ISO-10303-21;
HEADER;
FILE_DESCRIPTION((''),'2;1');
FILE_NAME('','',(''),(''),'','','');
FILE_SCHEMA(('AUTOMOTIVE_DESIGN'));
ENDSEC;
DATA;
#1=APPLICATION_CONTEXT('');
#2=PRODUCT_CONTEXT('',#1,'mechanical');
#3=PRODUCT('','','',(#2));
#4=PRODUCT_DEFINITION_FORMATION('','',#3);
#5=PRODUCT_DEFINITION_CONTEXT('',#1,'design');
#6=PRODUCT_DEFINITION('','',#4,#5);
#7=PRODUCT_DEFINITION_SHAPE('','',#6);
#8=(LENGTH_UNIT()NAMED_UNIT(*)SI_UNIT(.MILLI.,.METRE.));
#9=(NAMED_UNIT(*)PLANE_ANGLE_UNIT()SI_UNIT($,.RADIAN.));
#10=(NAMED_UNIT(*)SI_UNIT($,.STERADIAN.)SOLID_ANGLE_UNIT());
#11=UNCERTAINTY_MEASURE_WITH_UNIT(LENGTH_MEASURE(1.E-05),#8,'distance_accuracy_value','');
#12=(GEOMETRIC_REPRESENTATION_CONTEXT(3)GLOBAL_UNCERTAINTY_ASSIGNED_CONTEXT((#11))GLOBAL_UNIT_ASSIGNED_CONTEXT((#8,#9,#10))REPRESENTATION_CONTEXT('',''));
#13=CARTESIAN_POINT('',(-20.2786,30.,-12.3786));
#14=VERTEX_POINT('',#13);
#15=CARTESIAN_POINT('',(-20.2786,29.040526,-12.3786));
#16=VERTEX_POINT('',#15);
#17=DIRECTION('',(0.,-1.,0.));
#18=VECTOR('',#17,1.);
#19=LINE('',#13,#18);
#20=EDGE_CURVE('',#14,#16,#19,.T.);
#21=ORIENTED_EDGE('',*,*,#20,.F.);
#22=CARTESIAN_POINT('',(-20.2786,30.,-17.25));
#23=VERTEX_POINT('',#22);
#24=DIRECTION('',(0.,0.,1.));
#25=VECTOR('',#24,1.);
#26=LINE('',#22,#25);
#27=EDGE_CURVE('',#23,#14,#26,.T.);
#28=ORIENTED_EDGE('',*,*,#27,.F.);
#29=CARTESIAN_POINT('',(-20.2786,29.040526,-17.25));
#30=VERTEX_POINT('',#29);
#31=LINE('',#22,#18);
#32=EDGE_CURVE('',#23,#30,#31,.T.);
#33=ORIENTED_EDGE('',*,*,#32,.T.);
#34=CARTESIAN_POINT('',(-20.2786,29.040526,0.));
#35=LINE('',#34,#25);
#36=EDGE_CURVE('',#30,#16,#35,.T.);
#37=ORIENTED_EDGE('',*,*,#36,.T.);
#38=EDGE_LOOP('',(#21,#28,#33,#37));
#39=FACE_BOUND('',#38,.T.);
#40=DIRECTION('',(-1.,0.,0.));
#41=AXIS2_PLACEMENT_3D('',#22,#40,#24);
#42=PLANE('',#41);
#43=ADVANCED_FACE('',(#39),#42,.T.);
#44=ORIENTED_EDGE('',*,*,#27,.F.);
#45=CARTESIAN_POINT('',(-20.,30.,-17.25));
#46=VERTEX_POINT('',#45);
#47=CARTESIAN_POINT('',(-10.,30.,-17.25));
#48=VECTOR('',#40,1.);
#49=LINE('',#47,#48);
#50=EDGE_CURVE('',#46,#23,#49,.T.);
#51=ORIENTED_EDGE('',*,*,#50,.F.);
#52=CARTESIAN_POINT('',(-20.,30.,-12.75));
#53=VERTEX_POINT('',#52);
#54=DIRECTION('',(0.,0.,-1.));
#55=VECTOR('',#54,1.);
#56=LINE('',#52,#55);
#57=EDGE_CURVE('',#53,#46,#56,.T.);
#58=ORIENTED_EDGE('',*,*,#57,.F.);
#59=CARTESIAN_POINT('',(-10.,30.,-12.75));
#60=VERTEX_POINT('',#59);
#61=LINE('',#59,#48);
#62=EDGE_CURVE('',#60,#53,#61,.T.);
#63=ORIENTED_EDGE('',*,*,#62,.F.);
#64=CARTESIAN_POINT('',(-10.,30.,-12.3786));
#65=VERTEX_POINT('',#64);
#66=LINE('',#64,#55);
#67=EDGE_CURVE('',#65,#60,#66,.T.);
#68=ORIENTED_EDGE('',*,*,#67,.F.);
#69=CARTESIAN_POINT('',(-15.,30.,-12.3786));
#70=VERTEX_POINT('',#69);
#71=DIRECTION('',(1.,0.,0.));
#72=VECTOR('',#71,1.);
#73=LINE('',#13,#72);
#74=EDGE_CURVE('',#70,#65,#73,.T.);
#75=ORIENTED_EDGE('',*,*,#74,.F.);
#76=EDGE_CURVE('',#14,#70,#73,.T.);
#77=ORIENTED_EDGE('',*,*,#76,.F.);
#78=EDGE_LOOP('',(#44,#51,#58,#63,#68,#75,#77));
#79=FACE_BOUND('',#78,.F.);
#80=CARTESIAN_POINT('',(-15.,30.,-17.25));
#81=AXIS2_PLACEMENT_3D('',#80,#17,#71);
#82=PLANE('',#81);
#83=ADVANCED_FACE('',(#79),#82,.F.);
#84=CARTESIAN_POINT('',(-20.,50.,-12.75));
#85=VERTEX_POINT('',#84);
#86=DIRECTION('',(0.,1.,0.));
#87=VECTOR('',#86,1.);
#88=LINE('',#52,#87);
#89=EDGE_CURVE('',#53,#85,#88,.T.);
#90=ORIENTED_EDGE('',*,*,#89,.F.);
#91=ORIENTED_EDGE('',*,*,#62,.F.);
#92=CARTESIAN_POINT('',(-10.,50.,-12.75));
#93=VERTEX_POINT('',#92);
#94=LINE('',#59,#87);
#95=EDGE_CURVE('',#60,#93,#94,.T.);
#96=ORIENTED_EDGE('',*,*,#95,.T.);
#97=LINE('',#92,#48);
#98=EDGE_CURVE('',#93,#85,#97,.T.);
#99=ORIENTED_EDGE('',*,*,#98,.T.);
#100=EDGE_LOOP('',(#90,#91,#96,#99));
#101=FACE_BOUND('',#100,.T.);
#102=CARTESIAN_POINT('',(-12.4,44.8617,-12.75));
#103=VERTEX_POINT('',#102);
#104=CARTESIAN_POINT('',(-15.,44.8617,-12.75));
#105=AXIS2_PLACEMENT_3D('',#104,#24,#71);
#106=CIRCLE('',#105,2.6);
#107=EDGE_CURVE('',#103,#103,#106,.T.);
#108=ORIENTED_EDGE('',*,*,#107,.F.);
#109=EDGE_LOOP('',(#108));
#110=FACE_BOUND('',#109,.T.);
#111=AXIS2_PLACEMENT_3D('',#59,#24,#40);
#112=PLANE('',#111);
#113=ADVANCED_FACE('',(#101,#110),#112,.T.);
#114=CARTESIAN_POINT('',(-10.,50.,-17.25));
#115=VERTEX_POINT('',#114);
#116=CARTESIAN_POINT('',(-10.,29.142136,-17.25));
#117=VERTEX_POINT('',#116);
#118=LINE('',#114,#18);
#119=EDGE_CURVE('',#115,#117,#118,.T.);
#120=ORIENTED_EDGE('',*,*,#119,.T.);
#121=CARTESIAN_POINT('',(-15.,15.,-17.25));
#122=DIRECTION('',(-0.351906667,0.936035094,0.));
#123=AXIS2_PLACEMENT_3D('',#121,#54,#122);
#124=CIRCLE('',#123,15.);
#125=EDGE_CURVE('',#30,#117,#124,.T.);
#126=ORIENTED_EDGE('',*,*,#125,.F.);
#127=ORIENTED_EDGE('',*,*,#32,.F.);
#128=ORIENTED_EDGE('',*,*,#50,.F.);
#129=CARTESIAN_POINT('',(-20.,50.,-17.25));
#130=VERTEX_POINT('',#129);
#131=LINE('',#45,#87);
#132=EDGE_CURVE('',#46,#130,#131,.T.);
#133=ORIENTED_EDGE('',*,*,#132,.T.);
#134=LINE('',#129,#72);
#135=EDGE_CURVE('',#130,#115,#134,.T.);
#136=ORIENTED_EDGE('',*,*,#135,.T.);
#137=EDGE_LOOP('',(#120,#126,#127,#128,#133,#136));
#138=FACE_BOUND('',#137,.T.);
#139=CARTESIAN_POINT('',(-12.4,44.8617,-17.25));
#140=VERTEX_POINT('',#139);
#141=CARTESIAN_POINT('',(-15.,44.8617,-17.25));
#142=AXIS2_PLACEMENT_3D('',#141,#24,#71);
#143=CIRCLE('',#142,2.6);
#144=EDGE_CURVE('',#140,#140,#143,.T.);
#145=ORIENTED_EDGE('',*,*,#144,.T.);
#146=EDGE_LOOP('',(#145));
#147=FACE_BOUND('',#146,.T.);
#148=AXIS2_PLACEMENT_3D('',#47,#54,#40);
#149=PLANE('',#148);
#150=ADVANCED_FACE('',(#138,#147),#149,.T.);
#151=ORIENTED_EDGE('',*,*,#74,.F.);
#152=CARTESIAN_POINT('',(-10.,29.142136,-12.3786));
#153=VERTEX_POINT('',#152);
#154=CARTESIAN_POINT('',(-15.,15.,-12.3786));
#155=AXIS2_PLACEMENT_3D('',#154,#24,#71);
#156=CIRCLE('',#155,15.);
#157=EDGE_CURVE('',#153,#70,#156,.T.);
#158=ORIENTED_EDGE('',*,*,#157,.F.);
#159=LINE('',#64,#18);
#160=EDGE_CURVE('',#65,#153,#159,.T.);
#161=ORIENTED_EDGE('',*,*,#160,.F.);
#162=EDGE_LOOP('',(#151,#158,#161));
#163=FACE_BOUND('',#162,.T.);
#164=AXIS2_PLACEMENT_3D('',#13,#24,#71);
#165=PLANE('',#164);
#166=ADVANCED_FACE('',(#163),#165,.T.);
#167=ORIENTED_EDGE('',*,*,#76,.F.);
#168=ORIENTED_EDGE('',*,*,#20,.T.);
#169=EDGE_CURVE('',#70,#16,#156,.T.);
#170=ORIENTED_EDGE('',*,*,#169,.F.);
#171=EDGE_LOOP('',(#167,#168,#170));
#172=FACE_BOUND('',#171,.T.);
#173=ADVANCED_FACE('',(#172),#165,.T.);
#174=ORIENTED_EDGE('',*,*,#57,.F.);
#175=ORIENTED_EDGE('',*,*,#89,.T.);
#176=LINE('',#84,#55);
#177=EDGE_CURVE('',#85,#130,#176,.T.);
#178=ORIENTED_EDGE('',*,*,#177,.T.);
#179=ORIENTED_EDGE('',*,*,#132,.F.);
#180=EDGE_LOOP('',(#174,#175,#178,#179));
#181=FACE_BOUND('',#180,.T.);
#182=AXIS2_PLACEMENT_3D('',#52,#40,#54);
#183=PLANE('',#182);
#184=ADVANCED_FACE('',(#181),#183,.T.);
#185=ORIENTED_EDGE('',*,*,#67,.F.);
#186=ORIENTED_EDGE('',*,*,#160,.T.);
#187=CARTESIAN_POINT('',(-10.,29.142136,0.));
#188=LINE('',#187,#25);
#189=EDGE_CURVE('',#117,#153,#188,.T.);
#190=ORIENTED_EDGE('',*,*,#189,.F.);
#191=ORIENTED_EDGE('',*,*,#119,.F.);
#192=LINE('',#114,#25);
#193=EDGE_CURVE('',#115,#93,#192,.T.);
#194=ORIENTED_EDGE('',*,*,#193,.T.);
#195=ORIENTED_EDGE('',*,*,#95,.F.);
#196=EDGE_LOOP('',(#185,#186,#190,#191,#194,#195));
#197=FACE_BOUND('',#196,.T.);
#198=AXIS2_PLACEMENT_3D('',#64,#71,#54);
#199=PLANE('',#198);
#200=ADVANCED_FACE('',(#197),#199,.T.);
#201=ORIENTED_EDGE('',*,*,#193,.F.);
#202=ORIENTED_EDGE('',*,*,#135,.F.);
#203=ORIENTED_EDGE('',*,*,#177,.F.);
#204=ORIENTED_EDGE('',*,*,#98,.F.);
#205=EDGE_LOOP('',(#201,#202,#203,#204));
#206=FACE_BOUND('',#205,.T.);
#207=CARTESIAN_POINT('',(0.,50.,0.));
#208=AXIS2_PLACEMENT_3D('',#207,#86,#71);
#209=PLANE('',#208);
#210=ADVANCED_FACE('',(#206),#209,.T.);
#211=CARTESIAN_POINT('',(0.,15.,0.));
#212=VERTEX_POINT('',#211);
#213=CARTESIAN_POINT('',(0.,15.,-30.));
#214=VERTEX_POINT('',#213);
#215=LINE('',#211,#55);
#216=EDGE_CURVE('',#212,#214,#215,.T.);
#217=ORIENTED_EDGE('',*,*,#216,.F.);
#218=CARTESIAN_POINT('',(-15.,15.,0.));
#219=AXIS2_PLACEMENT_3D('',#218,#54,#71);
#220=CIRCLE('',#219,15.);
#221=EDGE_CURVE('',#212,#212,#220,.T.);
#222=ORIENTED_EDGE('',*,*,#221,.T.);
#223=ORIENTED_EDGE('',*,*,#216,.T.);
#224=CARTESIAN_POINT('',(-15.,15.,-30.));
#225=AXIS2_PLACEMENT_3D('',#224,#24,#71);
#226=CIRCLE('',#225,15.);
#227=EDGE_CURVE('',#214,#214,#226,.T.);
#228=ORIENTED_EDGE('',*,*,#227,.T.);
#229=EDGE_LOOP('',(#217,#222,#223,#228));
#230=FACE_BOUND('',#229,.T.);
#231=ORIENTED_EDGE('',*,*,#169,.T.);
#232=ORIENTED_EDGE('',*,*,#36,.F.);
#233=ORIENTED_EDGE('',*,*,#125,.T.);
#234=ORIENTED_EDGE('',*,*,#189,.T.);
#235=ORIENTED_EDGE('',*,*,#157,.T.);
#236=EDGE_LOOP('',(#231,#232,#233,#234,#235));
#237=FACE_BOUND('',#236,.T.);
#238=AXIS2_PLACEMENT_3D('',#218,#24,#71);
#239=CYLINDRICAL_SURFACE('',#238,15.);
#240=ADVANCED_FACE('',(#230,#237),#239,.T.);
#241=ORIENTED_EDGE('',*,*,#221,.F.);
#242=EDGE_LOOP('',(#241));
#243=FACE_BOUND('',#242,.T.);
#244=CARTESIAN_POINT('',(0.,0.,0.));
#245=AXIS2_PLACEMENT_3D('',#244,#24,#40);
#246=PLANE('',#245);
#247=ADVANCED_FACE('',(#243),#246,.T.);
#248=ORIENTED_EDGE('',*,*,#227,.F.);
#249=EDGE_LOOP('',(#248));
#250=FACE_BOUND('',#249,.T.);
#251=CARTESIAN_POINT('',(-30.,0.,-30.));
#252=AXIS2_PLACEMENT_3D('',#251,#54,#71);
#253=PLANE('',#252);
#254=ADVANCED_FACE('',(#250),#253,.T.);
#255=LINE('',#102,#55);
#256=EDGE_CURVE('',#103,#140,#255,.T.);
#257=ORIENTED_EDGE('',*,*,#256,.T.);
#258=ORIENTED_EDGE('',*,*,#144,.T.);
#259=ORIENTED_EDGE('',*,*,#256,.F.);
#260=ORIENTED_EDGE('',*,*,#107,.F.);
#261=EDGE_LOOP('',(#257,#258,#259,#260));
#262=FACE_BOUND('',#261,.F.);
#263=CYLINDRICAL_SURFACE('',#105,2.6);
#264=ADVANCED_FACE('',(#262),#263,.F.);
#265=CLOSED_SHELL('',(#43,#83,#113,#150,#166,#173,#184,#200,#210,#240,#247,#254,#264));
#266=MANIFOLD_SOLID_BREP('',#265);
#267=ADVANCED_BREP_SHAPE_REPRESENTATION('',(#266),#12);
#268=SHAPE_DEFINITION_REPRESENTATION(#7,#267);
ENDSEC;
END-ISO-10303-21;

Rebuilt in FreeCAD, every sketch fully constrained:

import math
import FreeCAD as App
import Part
import Sketcher
from FreeCAD import Vector
Q = App.Units.Quantity

doc = App.newDocument("Part")
body = doc.addObject("PartDesign::Body", "Body")
body.AllowCompound = True

# Sketch on XZ plane
sketch1 = doc.addObject("Sketcher::SketchObject", "Sketch")
body.addObject(sketch1)
sketch1.AttachmentSupport = (doc.XZ_Plane, [""])
sketch1.MapMode = "FlatFace"
sketch1.addGeometry([
    Part.LineSegment(Vector(-30, 0, 0), Vector(0, 0, 0)),
    Part.LineSegment(Vector(0, 0, 0), Vector(0, -30, 0)),
    Part.LineSegment(Vector(0, -30, 0), Vector(-30, -30, 0)),
    Part.LineSegment(Vector(-30, -30, 0), Vector(-30, 0, 0)),
], False)
sketch1.addConstraint([
    Sketcher.Constraint("Coincident", 0, 2, 1, 1),
    Sketcher.Constraint("Coincident", 1, 2, 2, 1),
    Sketcher.Constraint("Coincident", 2, 2, 3, 1),
    Sketcher.Constraint("Coincident", 3, 2, 0, 1),
    Sketcher.Constraint("Horizontal", 0),
    Sketcher.Constraint("Vertical", 1),
    Sketcher.Constraint("Horizontal", 2),
    Sketcher.Constraint("Vertical", 3),
    Sketcher.Constraint("Coincident", 0, 2, -1, 1),
    Sketcher.Constraint("Equal", 2, 1),
    Sketcher.Constraint("DistanceX", 0, 1, 0, 2, Q("30 mm")),
])
pad1 = doc.addObject("PartDesign::Pad", "Pad")
body.addObject(pad1)
pad1.Profile = sketch1
pad1.Length = 30
pad1.Reversed = True

# Sketch on XZ plane
sketch2 = doc.addObject("Sketcher::SketchObject", "Sketch001")
body.addObject(sketch2)
sketch2.AttachmentSupport = (doc.XZ_Plane, [""])
sketch2.MapMode = "FlatFace"
sketch2.AttachmentOffset = App.Placement(Vector(0, 0, -30), App.Rotation())
sketch2.addGeometry([
    Part.LineSegment(Vector(-10, -17.2, 0), Vector(-20, -17.2, 0)),
    Part.LineSegment(Vector(-20, -17.2, 0), Vector(-20, -12.8, 0)),
    Part.LineSegment(Vector(-20, -12.8, 0), Vector(-10, -12.8, 0)),
    Part.LineSegment(Vector(-10, -12.8, 0), Vector(-10, -17.2, 0)),
], False)
sketch2.addConstraint([
    Sketcher.Constraint("Coincident", 0, 2, 1, 1),
    Sketcher.Constraint("Coincident", 1, 2, 2, 1),
    Sketcher.Constraint("Coincident", 2, 2, 3, 1),
    Sketcher.Constraint("Coincident", 3, 2, 0, 1),
    Sketcher.Constraint("Horizontal", 0),
    Sketcher.Constraint("Vertical", 1),
    Sketcher.Constraint("Horizontal", 2),
    Sketcher.Constraint("Vertical", 3),
    Sketcher.Constraint("DistanceX", 0, 2, 0, 1, Q("10 mm")),
    Sketcher.Constraint("DistanceY", 1, 1, 1, 2, Q("4.5 mm")),
    Sketcher.Constraint("DistanceX", 2, 2, -1, 1, Q("10 mm")),
    Sketcher.Constraint("DistanceY", 0, 2, -1, 1, Q("17.25 mm")),
])
pad2 = doc.addObject("PartDesign::Pad", "Pad001")
body.addObject(pad2)
pad2.Profile = sketch2
pad2.Length = 20
pad2.Reversed = True

# Sketch on XY plane
sketch3 = doc.addObject("Sketcher::SketchObject", "Sketch002")
body.addObject(sketch3)
sketch3.AttachmentSupport = (doc.XY_Plane, [""])
sketch3.MapMode = "FlatFace"
sketch3.AttachmentOffset = App.Placement(Vector(0, 0, -12.75), App.Rotation())
sketch3.addGeometry(Part.Circle(Vector(-15, 44.9, 0), Vector(0, 0, 1), 2.6), False)
sketch3.addConstraint([
    Sketcher.Constraint("Diameter", 0, Q("5.2 mm")),
    Sketcher.Constraint("DistanceX", 0, 3, -1, 1, Q("15 mm")),
    Sketcher.Constraint("DistanceY", -1, 1, 0, 3, Q("44.8617 mm")),
])
pocket1 = doc.addObject("PartDesign::Pocket", "Pocket")
body.addObject(pocket1)
pocket1.Profile = sketch3
pocket1.Length = 20

# Sketch on XY plane
sketch4 = doc.addObject("Sketcher::SketchObject", "Sketch003")
body.addObject(sketch4)
sketch4.AttachmentSupport = (doc.XY_Plane, [""])
sketch4.MapMode = "FlatFace"
sketch4.addGeometry([
    Part.LineSegment(Vector(0, 0, 0), Vector(0, 15, 0)),  # 0
    Part.ArcOfCircle(Part.Circle(Vector(-15, 15, 0), Vector(0, 0, 1), 15), math.radians(-90), math.radians(0)),  # 1
    Part.LineSegment(Vector(-15, 0, 0), Vector(0, 0, 0)),  # 2
    Part.ArcOfCircle(Part.Circle(Vector(-15, 15, 0), Vector(0, 0, 1), 15), math.radians(0), math.radians(90)),  # 3
    Part.LineSegment(Vector(0, 15, 0), Vector(0, 30, 0)),  # 4
    Part.LineSegment(Vector(0, 30, 0), Vector(-15, 30, 0)),  # 5
    Part.ArcOfCircle(Part.Circle(Vector(-15, 15, 0), Vector(0, 0, 1), 15), math.radians(90), math.radians(180)),  # 6
    Part.LineSegment(Vector(-15, 30, 0), Vector(-30, 30, 0)),  # 7
    Part.LineSegment(Vector(-30, 30, 0), Vector(-30, 15, 0)),  # 8
    Part.LineSegment(Vector(-30, 0, 0), Vector(-15, 0, 0)),  # 9
    Part.ArcOfCircle(Part.Circle(Vector(-15, 15, 0), Vector(0, 0, 1), 15), math.radians(180), math.radians(270)),  # 10
    Part.LineSegment(Vector(-30, 15, 0), Vector(-30, 0, 0)),  # 11
], False)
sketch4.addConstraint([
    Sketcher.Constraint("Tangent", 0, 2, 1, 2),
    Sketcher.Constraint("Tangent", 1, 1, 2, 1),
    Sketcher.Constraint("Coincident", 2, 2, 0, 1),
    Sketcher.Constraint("Tangent", 3, 1, 4, 1),
    Sketcher.Constraint("Coincident", 4, 2, 5, 1),
    Sketcher.Constraint("Tangent", 5, 2, 3, 2),
    Sketcher.Constraint("Tangent", 6, 1, 7, 1),
    Sketcher.Constraint("Coincident", 7, 2, 8, 1),
    Sketcher.Constraint("Tangent", 8, 2, 6, 2),
    Sketcher.Constraint("Tangent", 9, 2, 10, 2),
    Sketcher.Constraint("Tangent", 10, 1, 11, 1),
    Sketcher.Constraint("Coincident", 11, 2, 9, 1),
    Sketcher.Constraint("Vertical", 0),
    Sketcher.Constraint("Horizontal", 2),
    Sketcher.Constraint("Vertical", 4),
    Sketcher.Constraint("Horizontal", 5),
    Sketcher.Constraint("Horizontal", 7),
    Sketcher.Constraint("Vertical", 8),
    Sketcher.Constraint("Horizontal", 9),
    Sketcher.Constraint("Vertical", 11),
    Sketcher.Constraint("Coincident", 2, 2, -1, 1),
    Sketcher.Constraint("Coincident", 3, 3, 1, 3),
    Sketcher.Constraint("Coincident", 6, 3, 1, 3),
    Sketcher.Constraint("Coincident", 10, 3, 1, 3),
    Sketcher.Constraint("Equal", 1, 3),
    Sketcher.Constraint("Equal", 3, 6),
    Sketcher.Constraint("Equal", 6, 10),
    Sketcher.Constraint("Radius", 1, Q("15 mm")),
])
pocket2 = doc.addObject("PartDesign::Pocket", "Pocket001")
body.addObject(pocket2)
pocket2.Profile = sketch4
pocket2.Length = 71.25

# Sketch on XZ plane
sketch5 = doc.addObject("Sketcher::SketchObject", "Sketch004")
body.addObject(sketch5)
sketch5.AttachmentSupport = (doc.XZ_Plane, [""])
sketch5.MapMode = "FlatFace"
sketch5.AttachmentOffset = App.Placement(Vector(0, 0, -30), App.Rotation())
sketch5.addGeometry([
    Part.LineSegment(Vector(-10, -12.4, 0), Vector(-20.3, -12.4, 0)),
    Part.LineSegment(Vector(-20.3, -12.4, 0), Vector(-20.3, -17.2, 0)),
    Part.LineSegment(Vector(-20.3, -17.2, 0), Vector(-10, -17.2, 0)),
    Part.LineSegment(Vector(-10, -17.2, 0), Vector(-10, -12.4, 0)),
], False)
sketch5.addConstraint([
    Sketcher.Constraint("Coincident", 0, 2, 1, 1),
    Sketcher.Constraint("Coincident", 1, 2, 2, 1),
    Sketcher.Constraint("Coincident", 2, 2, 3, 1),
    Sketcher.Constraint("Coincident", 3, 2, 0, 1),
    Sketcher.Constraint("Horizontal", 0),
    Sketcher.Constraint("Vertical", 1),
    Sketcher.Constraint("Horizontal", 2),
    Sketcher.Constraint("Vertical", 3),
    Sketcher.Constraint("DistanceX", 2, 2, -1, 1, Q("10 mm")),
    Sketcher.Constraint("DistanceY", 1, 2, -1, 1, Q("17.25 mm")),
    Sketcher.Constraint("DistanceX", 0, 2, 0, 1, Q("10.2786 mm")),
    Sketcher.Constraint("DistanceY", 1, 2, 1, 1, Q("4.8714 mm")),
])
pad3 = doc.addObject("PartDesign::Pad", "Pad002")
body.addObject(pad3)
pad3.Profile = sketch5
pad3.Length = 5

doc.recompute()
